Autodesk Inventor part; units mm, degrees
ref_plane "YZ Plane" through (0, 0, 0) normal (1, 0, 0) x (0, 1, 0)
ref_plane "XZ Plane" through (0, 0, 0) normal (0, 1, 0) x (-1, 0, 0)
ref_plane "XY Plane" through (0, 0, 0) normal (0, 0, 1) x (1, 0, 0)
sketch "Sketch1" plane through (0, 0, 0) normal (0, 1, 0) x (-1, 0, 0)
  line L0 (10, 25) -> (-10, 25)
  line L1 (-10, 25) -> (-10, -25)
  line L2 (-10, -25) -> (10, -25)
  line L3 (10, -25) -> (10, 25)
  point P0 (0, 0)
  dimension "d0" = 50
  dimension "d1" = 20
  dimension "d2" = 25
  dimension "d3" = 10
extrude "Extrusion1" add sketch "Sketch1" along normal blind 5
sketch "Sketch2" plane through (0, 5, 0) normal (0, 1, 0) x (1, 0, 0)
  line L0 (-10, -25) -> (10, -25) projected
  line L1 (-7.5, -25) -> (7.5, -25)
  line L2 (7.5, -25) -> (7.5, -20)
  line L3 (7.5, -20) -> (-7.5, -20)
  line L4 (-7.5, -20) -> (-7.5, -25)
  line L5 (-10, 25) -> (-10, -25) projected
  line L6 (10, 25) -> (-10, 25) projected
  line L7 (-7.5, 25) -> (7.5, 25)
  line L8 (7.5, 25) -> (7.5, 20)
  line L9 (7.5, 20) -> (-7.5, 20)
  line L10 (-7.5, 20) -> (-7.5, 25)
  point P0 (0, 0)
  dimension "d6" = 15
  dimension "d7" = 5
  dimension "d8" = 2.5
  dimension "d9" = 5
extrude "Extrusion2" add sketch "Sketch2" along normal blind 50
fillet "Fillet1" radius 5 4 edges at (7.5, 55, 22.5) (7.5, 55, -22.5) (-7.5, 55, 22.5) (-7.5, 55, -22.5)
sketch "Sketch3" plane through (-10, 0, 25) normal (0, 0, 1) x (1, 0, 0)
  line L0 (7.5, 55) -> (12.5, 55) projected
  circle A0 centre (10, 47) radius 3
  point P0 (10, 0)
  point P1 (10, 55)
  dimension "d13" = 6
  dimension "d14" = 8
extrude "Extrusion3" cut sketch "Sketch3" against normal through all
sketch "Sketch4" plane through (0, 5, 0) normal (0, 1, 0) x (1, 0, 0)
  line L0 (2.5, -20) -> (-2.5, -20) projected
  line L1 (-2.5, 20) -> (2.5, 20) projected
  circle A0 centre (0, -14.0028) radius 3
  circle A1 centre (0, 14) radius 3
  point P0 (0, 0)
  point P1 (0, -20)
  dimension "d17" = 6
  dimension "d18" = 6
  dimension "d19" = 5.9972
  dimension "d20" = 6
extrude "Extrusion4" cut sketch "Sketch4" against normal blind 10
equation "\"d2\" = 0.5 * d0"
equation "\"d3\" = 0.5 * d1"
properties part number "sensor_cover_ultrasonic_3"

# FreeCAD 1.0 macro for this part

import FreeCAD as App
import Part
import Sketcher


def edges_at(feature, points):
    """Names of the edges that pass closest to the given points."""
    edges = feature.Shape.Edges
    near = lambda p: min(range(len(edges)), key=lambda i: edges[i].distToShape(Part.Vertex(*p))[0])
    return sorted({f"Edge{near(p) + 1}" for p in points})

doc = App.newDocument("Part")
body = doc.addObject("PartDesign::Body", "Body")

# Sketch on XZ plane
sketch1 = doc.addObject("Sketcher::SketchObject", "Sketch")
body.addObject(sketch1)
sketch1.AttachmentSupport = (doc.XZ_Plane, [""])
sketch1.MapMode = "FlatFace"
sketch1.addGeometry([
    Part.LineSegment(App.Vector(-10, -25, 0), App.Vector(-10, 25, 0)),
    Part.LineSegment(App.Vector(-10, 25, 0), App.Vector(10, 25, 0)),
    Part.LineSegment(App.Vector(10, 25, 0), App.Vector(10, -25, 0)),
    Part.LineSegment(App.Vector(10, -25, 0), App.Vector(-10, -25, 0)),
], False)
sketch1.addConstraint([
    Sketcher.Constraint("Coincident", 0, 2, 1, 1),
    Sketcher.Constraint("Coincident", 1, 2, 2, 1),
    Sketcher.Constraint("Coincident", 2, 2, 3, 1),
    Sketcher.Constraint("Coincident", 3, 2, 0, 1),
    Sketcher.Constraint("Vertical", 0),
    Sketcher.Constraint("Horizontal", 1),
    Sketcher.Constraint("Vertical", 2),
    Sketcher.Constraint("Horizontal", 3),
    Sketcher.Constraint("Symmetric", 0, 2, 2, 2, -1, 1),
    Sketcher.Constraint("DistanceX", 1, 1, 1, 2, 20.0),
    Sketcher.Constraint("DistanceY", 0, 1, 0, 2, 50.0),
])
pad1 = doc.addObject("PartDesign::Pad", "Pad")
body.addObject(pad1)
pad1.Profile = sketch1
pad1.Length = 5
pad1.Reversed = True

# Sketch on XZ plane
sketch2 = doc.addObject("Sketcher::SketchObject", "Sketch001")
body.addObject(sketch2)
sketch2.AttachmentSupport = (doc.XZ_Plane, [""])
sketch2.MapMode = "FlatFace"
sketch2.AttachmentOffset = App.Placement(App.Vector(0, 0, -5), App.Rotation())
sketch2.addGeometry([
    Part.LineSegment(App.Vector(-8, 20, 0), App.Vector(-8, 25, 0)),  # 0
    Part.LineSegment(App.Vector(-8, 25, 0), App.Vector(8, 25, 0)),  # 1
    Part.LineSegment(App.Vector(8, 25, 0), App.Vector(8, 20, 0)),  # 2
    Part.LineSegment(App.Vector(8, 20, 0), App.Vector(-8, 20, 0)),  # 3
    Part.LineSegment(App.Vector(8, -25, 0), App.Vector(-8, -25, 0)),  # 4
    Part.LineSegment(App.Vector(-8, -25, 0), App.Vector(-8, -20, 0)),  # 5
    Part.LineSegment(App.Vector(-8, -20, 0), App.Vector(8, -20, 0)),  # 6
    Part.LineSegment(App.Vector(8, -20, 0), App.Vector(8, -25, 0)),  # 7
], False)
sketch2.addConstraint([
    Sketcher.Constraint("Coincident", 0, 2, 1, 1),
    Sketcher.Constraint("Coincident", 1, 2, 2, 1),
    Sketcher.Constraint("Coincident", 2, 2, 3, 1),
    Sketcher.Constraint("Coincident", 3, 2, 0, 1),
    Sketcher.Constraint("Coincident", 4, 2, 5, 1),
    Sketcher.Constraint("Coincident", 5, 2, 6, 1),
    Sketcher.Constraint("Coincident", 6, 2, 7, 1),
    Sketcher.Constraint("Coincident", 7, 2, 4, 1),
    Sketcher.Constraint("Vertical", 0),
    Sketcher.Constraint("Horizontal", 1),
    Sketcher.Constraint("Vertical", 2),
    Sketcher.Constraint("Horizontal", 3),
    Sketcher.Constraint("Horizontal", 4),
    Sketcher.Constraint("Vertical", 5),
    Sketcher.Constraint("Horizontal", 6),
    Sketcher.Constraint("Vertical", 7),
    Sketcher.Constraint("Symmetric", 1, 2, 4, 2, -1, 1),
    Sketcher.Constraint("Symmetric", 3, 2, 6, 2, -1, 1),
    Sketcher.Constraint("Vertical", 3, 2, 4, 2),
    Sketcher.Constraint("DistanceX", 1, 1, 1, 2, 15.0),
    Sketcher.Constraint("DistanceY", 0, 1, 0, 2, 5.0),
    Sketcher.Constraint("DistanceY", -1, 1, 0, 2, 25.0),
])
pad2 = doc.addObject("PartDesign::Pad", "Pad001")
body.addObject(pad2)
pad2.Profile = sketch2
pad2.Length = 50
pad2.Reversed = True
doc.recompute()

fillet = doc.addObject("PartDesign::Fillet", "Fillet")
body.addObject(fillet)
fillet.Base = (pad2, edges_at(pad2, [
    (7.5, 55, 22.5),
    (7.5, 55, -22.5),
    (-7.5, 55, 22.5),
    (-7.5, 55, -22.5),
]))
fillet.Radius = 5

# Sketch on XY plane
sketch3 = doc.addObject("Sketcher::SketchObject", "Sketch002")
body.addObject(sketch3)
sketch3.AttachmentSupport = (doc.XY_Plane, [""])
sketch3.MapMode = "FlatFace"
sketch3.AttachmentOffset = App.Placement(App.Vector(0, 0, 25), App.Rotation())
sketch3.addGeometry(Part.Circle(App.Vector(0, 47, 0), App.Vector(0, 0, 1), 3), False)
sketch3.addConstraint([
    Sketcher.Constraint("PointOnObject", 0, 3, -2),
    Sketcher.Constraint("Diameter", 0, 6.0),
    Sketcher.Constraint("DistanceY", -1, 1, 0, 3, 47.0),
])
pocket1 = doc.addObject("PartDesign::Pocket", "Pocket")
body.addObject(pocket1)
pocket1.Profile = sketch3
pocket1.Type = "ThroughAll"

# Sketch on XZ plane
sketch4 = doc.addObject("Sketcher::SketchObject", "Sketch003")
body.addObject(sketch4)
sketch4.AttachmentSupport = (doc.XZ_Plane, [""])
sketch4.MapMode = "FlatFace"
sketch4.AttachmentOffset = App.Placement(App.Vector(0, 0, -5), App.Rotation())
sketch4.addGeometry([
    Part.Circle(App.Vector(0, 14, 0), App.Vector(0, 0, 1), 3),
    Part.Circle(App.Vector(0, -14, 0), App.Vector(0, 0, 1), 3),
], False)
sketch4.addConstraint([
    Sketcher.Constraint("Equal", 0, 1),
    Sketcher.Constraint("PointOnObject", 0, 3, -2),
    Sketcher.Constraint("PointOnObject", 1, 3, -2),
    Sketcher.Constraint("Diameter", 0, 6.0),
    Sketcher.Constraint("DistanceY", 1, 3, -1, 1, 14.0),
    Sketcher.Constraint("DistanceY", -1, 1, 0, 3, 14.0028),
])
pocket2 = doc.addObject("PartDesign::Pocket", "Pocket001")
body.addObject(pocket2)
pocket2.Profile = sketch4
pocket2.Length = 10
pocket2.Reversed = True

doc.recompute()
